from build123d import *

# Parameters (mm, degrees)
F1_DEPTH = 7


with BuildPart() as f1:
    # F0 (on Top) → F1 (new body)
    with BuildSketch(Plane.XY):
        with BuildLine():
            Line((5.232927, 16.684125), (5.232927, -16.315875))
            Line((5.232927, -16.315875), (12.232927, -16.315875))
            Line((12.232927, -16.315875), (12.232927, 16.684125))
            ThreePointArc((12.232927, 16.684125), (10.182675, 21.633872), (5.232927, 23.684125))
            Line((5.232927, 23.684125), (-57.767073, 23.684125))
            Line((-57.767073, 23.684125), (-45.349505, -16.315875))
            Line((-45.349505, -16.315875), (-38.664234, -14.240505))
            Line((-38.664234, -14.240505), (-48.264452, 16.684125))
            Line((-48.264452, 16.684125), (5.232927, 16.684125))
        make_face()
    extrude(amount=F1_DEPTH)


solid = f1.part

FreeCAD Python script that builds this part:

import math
import FreeCAD as App
import Part
import Sketcher

V = App.Vector

doc = App.newDocument("Part")
body = doc.addObject("PartDesign::Body", "Body")

# Sketch on XY plane
sketch1 = body.newObject("Sketcher::SketchObject", "Sketch")
sketch1.AttachmentSupport = (doc.getObject("XY_Plane"), [""])
sketch1.MapMode = "FlatFace"
sketch1.addGeometry([
    Part.LineSegment(V(5.232927, 16.684125, 0), V(5.232927, -16.315875, 0)),  # 0
    Part.LineSegment(V(5.232927, -16.315875, 0), V(12.232927, -16.315875, 0)),  # 1
    Part.LineSegment(V(12.232927, -16.315875, 0), V(12.232927, 16.684125, 0)),  # 2
    Part.ArcOfCircle(Part.Circle(V(5.232927, 16.684125, 0), V(0, 0, 1), 7), math.radians(-0.000001), math.radians(90.000001)),  # 3
    Part.LineSegment(V(5.232927, 23.684125, 0), V(-57.767073, 23.684125, 0)),  # 4
    Part.LineSegment(V(-57.767073, 23.684125, 0), V(-45.349505, -16.315875, 0)),  # 5
    Part.LineSegment(V(-45.349505, -16.315875, 0), V(-38.664234, -14.240505, 0)),  # 6
    Part.LineSegment(V(-38.664234, -14.240505, 0), V(-48.264452, 16.684125, 0)),  # 7
    Part.LineSegment(V(-48.264452, 16.684125, 0), V(5.232927, 16.684125, 0)),  # 8
], False)
sketch1.addConstraint([
    Sketcher.Constraint("Coincident", 0, 2, 1, 1),
    Sketcher.Constraint("Coincident", 1, 2, 2, 1),
    Sketcher.Constraint("Tangent", 2, 2, 3, 1),
    Sketcher.Constraint("Tangent", 3, 2, 4, 1),
    Sketcher.Constraint("Coincident", 4, 2, 5, 1),
    Sketcher.Constraint("Coincident", 5, 2, 6, 1),
    Sketcher.Constraint("Coincident", 6, 2, 7, 1),
    Sketcher.Constraint("Coincident", 7, 2, 8, 1),
    Sketcher.Constraint("Coincident", 8, 2, 0, 1),
    Sketcher.Constraint("Vertical", 0),
    Sketcher.Constraint("Horizontal", 1),
    Sketcher.Constraint("Vertical", 2),
    Sketcher.Constraint("Horizontal", 4),
    Sketcher.Constraint("Horizontal", 8),
    Sketcher.Constraint("Coincident", 8, 2, 3, 3),
    Sketcher.Constraint("Perpendicular", 5, 6),
    Sketcher.Constraint("Perpendicular", 6, 7),
    Sketcher.Constraint("Horizontal", 1, 2, 5, 2),
    Sketcher.Constraint("Radius", 3, 7.0),
    Sketcher.Constraint("DistanceX", 4, 2, 4, 1, 63.0),
    Sketcher.Constraint("DistanceY", 0, 2, 0, 1, 33.0),
    Sketcher.Constraint("Distance", 6, 7.000001),
    Sketcher.Constraint("DistanceX", 8, 1, 8, 2, 53.497379),
    Sketcher.Constraint("DistanceX", -1, 1, 3, 3, 5.232927),
    Sketcher.Constraint("DistanceY", -1, 1, 3, 3, 16.684125),
])
pad1 = body.newObject("PartDesign::Pad", "Pad")
pad1.Profile = sketch1
pad1.Length = 7

doc.recompute()
